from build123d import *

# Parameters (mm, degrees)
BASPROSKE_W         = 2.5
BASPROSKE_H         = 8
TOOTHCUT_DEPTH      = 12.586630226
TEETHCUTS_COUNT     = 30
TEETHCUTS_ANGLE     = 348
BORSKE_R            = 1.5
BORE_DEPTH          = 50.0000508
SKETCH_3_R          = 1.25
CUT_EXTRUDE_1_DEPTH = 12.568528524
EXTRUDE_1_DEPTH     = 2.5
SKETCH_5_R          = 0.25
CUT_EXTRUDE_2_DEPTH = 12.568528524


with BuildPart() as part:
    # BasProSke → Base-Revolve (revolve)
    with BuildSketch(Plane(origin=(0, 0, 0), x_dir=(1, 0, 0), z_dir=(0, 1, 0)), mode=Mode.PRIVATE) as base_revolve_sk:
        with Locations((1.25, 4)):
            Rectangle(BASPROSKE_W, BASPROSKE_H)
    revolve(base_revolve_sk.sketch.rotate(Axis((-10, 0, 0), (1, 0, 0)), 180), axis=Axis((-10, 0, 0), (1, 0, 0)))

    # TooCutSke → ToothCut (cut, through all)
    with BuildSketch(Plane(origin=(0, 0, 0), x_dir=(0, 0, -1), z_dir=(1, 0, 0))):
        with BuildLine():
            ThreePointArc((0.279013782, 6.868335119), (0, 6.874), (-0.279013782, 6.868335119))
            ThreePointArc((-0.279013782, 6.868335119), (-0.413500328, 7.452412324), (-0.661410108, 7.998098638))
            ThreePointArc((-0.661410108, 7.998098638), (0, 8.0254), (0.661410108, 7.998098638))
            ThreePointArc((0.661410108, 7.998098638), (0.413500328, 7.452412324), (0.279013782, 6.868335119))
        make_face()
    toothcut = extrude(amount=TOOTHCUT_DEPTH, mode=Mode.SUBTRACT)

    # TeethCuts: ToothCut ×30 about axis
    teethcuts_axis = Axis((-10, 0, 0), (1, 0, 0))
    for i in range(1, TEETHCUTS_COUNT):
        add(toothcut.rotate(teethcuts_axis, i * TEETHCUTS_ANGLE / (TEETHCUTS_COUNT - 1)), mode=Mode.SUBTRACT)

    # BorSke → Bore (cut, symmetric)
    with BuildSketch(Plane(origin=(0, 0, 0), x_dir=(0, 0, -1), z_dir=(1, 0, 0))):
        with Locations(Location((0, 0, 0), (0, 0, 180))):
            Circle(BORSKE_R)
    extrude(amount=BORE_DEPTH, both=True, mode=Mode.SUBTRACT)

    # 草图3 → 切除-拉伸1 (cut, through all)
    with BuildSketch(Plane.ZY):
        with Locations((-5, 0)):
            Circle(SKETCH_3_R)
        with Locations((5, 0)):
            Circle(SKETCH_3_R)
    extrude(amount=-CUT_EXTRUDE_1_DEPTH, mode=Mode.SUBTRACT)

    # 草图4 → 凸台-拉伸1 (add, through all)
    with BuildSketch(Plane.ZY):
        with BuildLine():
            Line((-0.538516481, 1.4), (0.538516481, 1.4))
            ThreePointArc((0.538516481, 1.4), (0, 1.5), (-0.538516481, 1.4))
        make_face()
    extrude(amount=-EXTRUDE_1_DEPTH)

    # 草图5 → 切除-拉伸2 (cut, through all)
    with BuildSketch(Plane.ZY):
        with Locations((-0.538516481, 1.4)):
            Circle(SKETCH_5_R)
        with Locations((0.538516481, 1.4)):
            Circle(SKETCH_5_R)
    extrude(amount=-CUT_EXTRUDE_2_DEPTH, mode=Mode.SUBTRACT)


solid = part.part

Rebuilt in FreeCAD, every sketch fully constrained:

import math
import FreeCAD as App
import Part
import Sketcher

V = App.Vector
Q = App.Units.Quantity

doc = App.newDocument("Part")
body = doc.addObject("PartDesign::Body", "Body")

# Sketch on XZ plane
sketch1 = doc.addObject("Sketcher::SketchObject", "Sketch")
body.addObject(sketch1)
sketch1.AttachmentSupport = (doc.XZ_Plane, [""])
sketch1.MapMode = "FlatFace"
sketch1.addGeometry(Part.LineSegment(V(0, -8, 0), V(0, 0, 0)), False)
sketch1.addGeometry(Part.LineSegment(V(0, 0, 0), V(2.5, 0, 0)), False)
sketch1.addGeometry(Part.LineSegment(V(2.5, 0, 0), V(2.5, -8, 0)), False)
sketch1.addGeometry(Part.LineSegment(V(2.5, -8, 0), V(0, -8, 0)), False)
sketch1.addConstraint(Sketcher.Constraint("Coincident", 0, 2, 1, 1))
sketch1.addConstraint(Sketcher.Constraint("Coincident", 1, 2, 2, 1))
sketch1.addConstraint(Sketcher.Constraint("Coincident", 2, 2, 3, 1))
sketch1.addConstraint(Sketcher.Constraint("Coincident", 3, 2, 0, 1))
sketch1.addConstraint(Sketcher.Constraint("Vertical", 0))
sketch1.addConstraint(Sketcher.Constraint("Horizontal", 1))
sketch1.addConstraint(Sketcher.Constraint("Vertical", 2))
sketch1.addConstraint(Sketcher.Constraint("Horizontal", 3))
sketch1.addConstraint(Sketcher.Constraint("Coincident", 0, 2, -1, 1))
sketch1.addConstraint(Sketcher.Constraint("DistanceY", 0, 1, 0, 2, Q("8 mm")))
sketch1.addConstraint(Sketcher.Constraint("DistanceX", 1, 1, 1, 2, Q("2.5 mm")))
revolution = doc.addObject("PartDesign::Revolution", "Revolution")
body.addObject(revolution)
revolution.Profile = sketch1
revolution.ReferenceAxis = (sketch1, ["H_Axis"])
revolution.Angle = 360

# Sketch on YZ plane
sketch2 = doc.addObject("Sketcher::SketchObject", "Sketch001")
body.addObject(sketch2)
sketch2.AttachmentSupport = (doc.YZ_Plane, [""])
sketch2.MapMode = "FlatFace"
sketch2.addGeometry(Part.ArcOfCircle(Part.Circle(V(0, 0, 0), V(0, 0, 1), 6.874), math.radians(-2.326259), math.radians(2.326259)), False)
sketch2.addGeometry(Part.ArcOfCircle(Part.Circle(V(6.49059, -3.255137, 0), V(0, 0, 1), 3), math.radians(59.83428), math.radians(82.766405)), False)
sketch2.addGeometry(Part.ArcOfCircle(Part.Circle(V(0, 0, 0), V(0, 0, 1), 8.0254), math.radians(-4.72737), math.radians(4.72737)), False)
sketch2.addGeometry(Part.ArcOfCircle(Part.Circle(V(6.49059, 3.255137, 0), V(0, 0, 1), 3), math.radians(-82.766405), math.radians(-59.83428)), False)
sketch2.addConstraint(Sketcher.Constraint("Coincident", 0, 1, 1, 2))
sketch2.addConstraint(Sketcher.Constraint("Coincident", 1, 1, 2, 1))
sketch2.addConstraint(Sketcher.Constraint("Coincident", 2, 2, 3, 2))
sketch2.addConstraint(Sketcher.Constraint("Coincident", 3, 1, 0, 2))
sketch2.addConstraint(Sketcher.Constraint("Coincident", 0, 3, -1, 1))
sketch2.addConstraint(Sketcher.Constraint("Coincident", 2, 3, -1, 1))
sketch2.addConstraint(Sketcher.Constraint("Equal", 1, 3))
sketch2.addConstraint(Sketcher.Constraint("Symmetric", 1, 3, 3, 3, -1))
sketch2.addConstraint(Sketcher.Constraint("Radius", 1, Q("3 mm")))
sketch2.addConstraint(Sketcher.Constraint("Radius", 0, Q("6.874 mm")))
sketch2.addConstraint(Sketcher.Constraint("Radius", 2, Q("8.0254 mm")))
sketch2.addConstraint(Sketcher.Constraint("DistanceX", -1, 1, 1, 1, Q("7.998099 mm")))
sketch2.addConstraint(Sketcher.Constraint("DistanceX", -1, 1, 1, 3, Q("6.49059 mm")))
pocket1 = doc.addObject("PartDesign::Pocket", "Pocket")
body.addObject(pocket1)
pocket1.Profile = sketch2
pocket1.Type = "ThroughAll"
pocket1.Reversed = True
doc.recompute()

polarpattern = doc.addObject("PartDesign::PolarPattern", "PolarPattern")
body.addObject(polarpattern)
polarpattern.Originals = [pocket1]
polarpattern.Axis = (doc.X_Axis, [""])
polarpattern.Angle = 360
polarpattern.Occurrences = 30
body.Tip = polarpattern

# Sketch on YZ plane
sketch3 = doc.addObject("Sketcher::SketchObject", "Sketch002")
body.addObject(sketch3)
sketch3.AttachmentSupport = (doc.YZ_Plane, [""])
sketch3.MapMode = "FlatFace"
sketch3.addGeometry(Part.Circle(V(0, 0, 0), V(0, 0, 1), 1.5), False)
sketch3.addConstraint(Sketcher.Constraint("Coincident", 0, 3, -1, 1))
sketch3.addConstraint(Sketcher.Constraint("Diameter", 0, Q("3 mm")))
pocket2 = doc.addObject("PartDesign::Pocket", "Pocket001")
body.addObject(pocket2)
pocket2.Profile = sketch3
pocket2.Length = 100.000102
pocket2.Midplane = True

# Sketch on YZ plane
sketch4 = doc.addObject("Sketcher::SketchObject", "Sketch003")
body.addObject(sketch4)
sketch4.AttachmentSupport = (doc.YZ_Plane, [""])
sketch4.MapMode = "FlatFace"
sketch4.addGeometry(Part.Circle(V(0, -5, 0), V(0, 0, 1), 1.25), False)
sketch4.addGeometry(Part.Circle(V(0, 5, 0), V(0, 0, 1), 1.25), False)
sketch4.addConstraint(Sketcher.Constraint("Equal", 0, 1))
sketch4.addConstraint(Sketcher.Constraint("Symmetric", 0, 3, 1, 3, -1, 1))
sketch4.addConstraint(Sketcher.Constraint("PointOnObject", 0, 3, -2))
sketch4.addConstraint(Sketcher.Constraint("Diameter", 0, Q("2.5 mm")))
sketch4.addConstraint(Sketcher.Constraint("DistanceY", 0, 3, -1, 1, Q("5 mm")))
pocket3 = doc.addObject("PartDesign::Pocket", "Pocket002")
body.addObject(pocket3)
pocket3.Profile = sketch4
pocket3.Type = "ThroughAll"
pocket3.Reversed = True

# Sketch on YZ plane
sketch5 = doc.addObject("Sketcher::SketchObject", "Sketch004")
body.addObject(sketch5)
sketch5.AttachmentSupport = (doc.YZ_Plane, [""])
sketch5.MapMode = "FlatFace"
sketch5.addGeometry(Part.LineSegment(V(1.4, -0.538516, 0), V(1.4, 0.538516, 0)), False)
sketch5.addGeometry(Part.ArcOfCircle(Part.Circle(V(0, 0, 0), V(0, 0, 1), 1.5), math.radians(-21.03947), math.radians(21.03947)), False)
sketch5.addConstraint(Sketcher.Constraint("Coincident", 0, 1, 1, 1))
sketch5.addConstraint(Sketcher.Constraint("Coincident", 1, 2, 0, 2))
sketch5.addConstraint(Sketcher.Constraint("Vertical", 0))
sketch5.addConstraint(Sketcher.Constraint("Coincident", 1, 3, -1, 1))
sketch5.addConstraint(Sketcher.Constraint("Radius", 1, Q("1.5 mm")))
sketch5.addConstraint(Sketcher.Constraint("DistanceX", -1, 1, 0, 1, Q("1.4 mm")))
pad1 = doc.addObject("PartDesign::Pad", "Pad")
body.addObject(pad1)
pad1.Profile = sketch5
pad1.Length = 2.5

# Sketch on YZ plane
sketch6 = doc.addObject("Sketcher::SketchObject", "Sketch005")
body.addObject(sketch6)
sketch6.AttachmentSupport = (doc.YZ_Plane, [""])
sketch6.MapMode = "FlatFace"
sketch6.addGeometry(Part.Circle(V(1.4, -0.538516, 0), V(0, 0, 1), 0.25), False)
sketch6.addGeometry(Part.Circle(V(1.4, 0.538516, 0), V(0, 0, 1), 0.25), False)
sketch6.addConstraint(Sketcher.Constraint("Equal", 0, 1))
sketch6.addConstraint(Sketcher.Constraint("Symmetric", 0, 3, 1, 3, -1))
sketch6.addConstraint(Sketcher.Constraint("Diameter", 0, Q("0.5 mm")))
sketch6.addConstraint(Sketcher.Constraint("DistanceX", -1, 1, 0, 3, Q("1.4 mm")))
sketch6.addConstraint(Sketcher.Constraint("DistanceY", 0, 3, -1, 1, Q("0.538516 mm")))
pocket4 = doc.addObject("PartDesign::Pocket", "Pocket003")
body.addObject(pocket4)
pocket4.Profile = sketch6
pocket4.Type = "ThroughAll"
pocket4.Reversed = True

doc.recompute()
